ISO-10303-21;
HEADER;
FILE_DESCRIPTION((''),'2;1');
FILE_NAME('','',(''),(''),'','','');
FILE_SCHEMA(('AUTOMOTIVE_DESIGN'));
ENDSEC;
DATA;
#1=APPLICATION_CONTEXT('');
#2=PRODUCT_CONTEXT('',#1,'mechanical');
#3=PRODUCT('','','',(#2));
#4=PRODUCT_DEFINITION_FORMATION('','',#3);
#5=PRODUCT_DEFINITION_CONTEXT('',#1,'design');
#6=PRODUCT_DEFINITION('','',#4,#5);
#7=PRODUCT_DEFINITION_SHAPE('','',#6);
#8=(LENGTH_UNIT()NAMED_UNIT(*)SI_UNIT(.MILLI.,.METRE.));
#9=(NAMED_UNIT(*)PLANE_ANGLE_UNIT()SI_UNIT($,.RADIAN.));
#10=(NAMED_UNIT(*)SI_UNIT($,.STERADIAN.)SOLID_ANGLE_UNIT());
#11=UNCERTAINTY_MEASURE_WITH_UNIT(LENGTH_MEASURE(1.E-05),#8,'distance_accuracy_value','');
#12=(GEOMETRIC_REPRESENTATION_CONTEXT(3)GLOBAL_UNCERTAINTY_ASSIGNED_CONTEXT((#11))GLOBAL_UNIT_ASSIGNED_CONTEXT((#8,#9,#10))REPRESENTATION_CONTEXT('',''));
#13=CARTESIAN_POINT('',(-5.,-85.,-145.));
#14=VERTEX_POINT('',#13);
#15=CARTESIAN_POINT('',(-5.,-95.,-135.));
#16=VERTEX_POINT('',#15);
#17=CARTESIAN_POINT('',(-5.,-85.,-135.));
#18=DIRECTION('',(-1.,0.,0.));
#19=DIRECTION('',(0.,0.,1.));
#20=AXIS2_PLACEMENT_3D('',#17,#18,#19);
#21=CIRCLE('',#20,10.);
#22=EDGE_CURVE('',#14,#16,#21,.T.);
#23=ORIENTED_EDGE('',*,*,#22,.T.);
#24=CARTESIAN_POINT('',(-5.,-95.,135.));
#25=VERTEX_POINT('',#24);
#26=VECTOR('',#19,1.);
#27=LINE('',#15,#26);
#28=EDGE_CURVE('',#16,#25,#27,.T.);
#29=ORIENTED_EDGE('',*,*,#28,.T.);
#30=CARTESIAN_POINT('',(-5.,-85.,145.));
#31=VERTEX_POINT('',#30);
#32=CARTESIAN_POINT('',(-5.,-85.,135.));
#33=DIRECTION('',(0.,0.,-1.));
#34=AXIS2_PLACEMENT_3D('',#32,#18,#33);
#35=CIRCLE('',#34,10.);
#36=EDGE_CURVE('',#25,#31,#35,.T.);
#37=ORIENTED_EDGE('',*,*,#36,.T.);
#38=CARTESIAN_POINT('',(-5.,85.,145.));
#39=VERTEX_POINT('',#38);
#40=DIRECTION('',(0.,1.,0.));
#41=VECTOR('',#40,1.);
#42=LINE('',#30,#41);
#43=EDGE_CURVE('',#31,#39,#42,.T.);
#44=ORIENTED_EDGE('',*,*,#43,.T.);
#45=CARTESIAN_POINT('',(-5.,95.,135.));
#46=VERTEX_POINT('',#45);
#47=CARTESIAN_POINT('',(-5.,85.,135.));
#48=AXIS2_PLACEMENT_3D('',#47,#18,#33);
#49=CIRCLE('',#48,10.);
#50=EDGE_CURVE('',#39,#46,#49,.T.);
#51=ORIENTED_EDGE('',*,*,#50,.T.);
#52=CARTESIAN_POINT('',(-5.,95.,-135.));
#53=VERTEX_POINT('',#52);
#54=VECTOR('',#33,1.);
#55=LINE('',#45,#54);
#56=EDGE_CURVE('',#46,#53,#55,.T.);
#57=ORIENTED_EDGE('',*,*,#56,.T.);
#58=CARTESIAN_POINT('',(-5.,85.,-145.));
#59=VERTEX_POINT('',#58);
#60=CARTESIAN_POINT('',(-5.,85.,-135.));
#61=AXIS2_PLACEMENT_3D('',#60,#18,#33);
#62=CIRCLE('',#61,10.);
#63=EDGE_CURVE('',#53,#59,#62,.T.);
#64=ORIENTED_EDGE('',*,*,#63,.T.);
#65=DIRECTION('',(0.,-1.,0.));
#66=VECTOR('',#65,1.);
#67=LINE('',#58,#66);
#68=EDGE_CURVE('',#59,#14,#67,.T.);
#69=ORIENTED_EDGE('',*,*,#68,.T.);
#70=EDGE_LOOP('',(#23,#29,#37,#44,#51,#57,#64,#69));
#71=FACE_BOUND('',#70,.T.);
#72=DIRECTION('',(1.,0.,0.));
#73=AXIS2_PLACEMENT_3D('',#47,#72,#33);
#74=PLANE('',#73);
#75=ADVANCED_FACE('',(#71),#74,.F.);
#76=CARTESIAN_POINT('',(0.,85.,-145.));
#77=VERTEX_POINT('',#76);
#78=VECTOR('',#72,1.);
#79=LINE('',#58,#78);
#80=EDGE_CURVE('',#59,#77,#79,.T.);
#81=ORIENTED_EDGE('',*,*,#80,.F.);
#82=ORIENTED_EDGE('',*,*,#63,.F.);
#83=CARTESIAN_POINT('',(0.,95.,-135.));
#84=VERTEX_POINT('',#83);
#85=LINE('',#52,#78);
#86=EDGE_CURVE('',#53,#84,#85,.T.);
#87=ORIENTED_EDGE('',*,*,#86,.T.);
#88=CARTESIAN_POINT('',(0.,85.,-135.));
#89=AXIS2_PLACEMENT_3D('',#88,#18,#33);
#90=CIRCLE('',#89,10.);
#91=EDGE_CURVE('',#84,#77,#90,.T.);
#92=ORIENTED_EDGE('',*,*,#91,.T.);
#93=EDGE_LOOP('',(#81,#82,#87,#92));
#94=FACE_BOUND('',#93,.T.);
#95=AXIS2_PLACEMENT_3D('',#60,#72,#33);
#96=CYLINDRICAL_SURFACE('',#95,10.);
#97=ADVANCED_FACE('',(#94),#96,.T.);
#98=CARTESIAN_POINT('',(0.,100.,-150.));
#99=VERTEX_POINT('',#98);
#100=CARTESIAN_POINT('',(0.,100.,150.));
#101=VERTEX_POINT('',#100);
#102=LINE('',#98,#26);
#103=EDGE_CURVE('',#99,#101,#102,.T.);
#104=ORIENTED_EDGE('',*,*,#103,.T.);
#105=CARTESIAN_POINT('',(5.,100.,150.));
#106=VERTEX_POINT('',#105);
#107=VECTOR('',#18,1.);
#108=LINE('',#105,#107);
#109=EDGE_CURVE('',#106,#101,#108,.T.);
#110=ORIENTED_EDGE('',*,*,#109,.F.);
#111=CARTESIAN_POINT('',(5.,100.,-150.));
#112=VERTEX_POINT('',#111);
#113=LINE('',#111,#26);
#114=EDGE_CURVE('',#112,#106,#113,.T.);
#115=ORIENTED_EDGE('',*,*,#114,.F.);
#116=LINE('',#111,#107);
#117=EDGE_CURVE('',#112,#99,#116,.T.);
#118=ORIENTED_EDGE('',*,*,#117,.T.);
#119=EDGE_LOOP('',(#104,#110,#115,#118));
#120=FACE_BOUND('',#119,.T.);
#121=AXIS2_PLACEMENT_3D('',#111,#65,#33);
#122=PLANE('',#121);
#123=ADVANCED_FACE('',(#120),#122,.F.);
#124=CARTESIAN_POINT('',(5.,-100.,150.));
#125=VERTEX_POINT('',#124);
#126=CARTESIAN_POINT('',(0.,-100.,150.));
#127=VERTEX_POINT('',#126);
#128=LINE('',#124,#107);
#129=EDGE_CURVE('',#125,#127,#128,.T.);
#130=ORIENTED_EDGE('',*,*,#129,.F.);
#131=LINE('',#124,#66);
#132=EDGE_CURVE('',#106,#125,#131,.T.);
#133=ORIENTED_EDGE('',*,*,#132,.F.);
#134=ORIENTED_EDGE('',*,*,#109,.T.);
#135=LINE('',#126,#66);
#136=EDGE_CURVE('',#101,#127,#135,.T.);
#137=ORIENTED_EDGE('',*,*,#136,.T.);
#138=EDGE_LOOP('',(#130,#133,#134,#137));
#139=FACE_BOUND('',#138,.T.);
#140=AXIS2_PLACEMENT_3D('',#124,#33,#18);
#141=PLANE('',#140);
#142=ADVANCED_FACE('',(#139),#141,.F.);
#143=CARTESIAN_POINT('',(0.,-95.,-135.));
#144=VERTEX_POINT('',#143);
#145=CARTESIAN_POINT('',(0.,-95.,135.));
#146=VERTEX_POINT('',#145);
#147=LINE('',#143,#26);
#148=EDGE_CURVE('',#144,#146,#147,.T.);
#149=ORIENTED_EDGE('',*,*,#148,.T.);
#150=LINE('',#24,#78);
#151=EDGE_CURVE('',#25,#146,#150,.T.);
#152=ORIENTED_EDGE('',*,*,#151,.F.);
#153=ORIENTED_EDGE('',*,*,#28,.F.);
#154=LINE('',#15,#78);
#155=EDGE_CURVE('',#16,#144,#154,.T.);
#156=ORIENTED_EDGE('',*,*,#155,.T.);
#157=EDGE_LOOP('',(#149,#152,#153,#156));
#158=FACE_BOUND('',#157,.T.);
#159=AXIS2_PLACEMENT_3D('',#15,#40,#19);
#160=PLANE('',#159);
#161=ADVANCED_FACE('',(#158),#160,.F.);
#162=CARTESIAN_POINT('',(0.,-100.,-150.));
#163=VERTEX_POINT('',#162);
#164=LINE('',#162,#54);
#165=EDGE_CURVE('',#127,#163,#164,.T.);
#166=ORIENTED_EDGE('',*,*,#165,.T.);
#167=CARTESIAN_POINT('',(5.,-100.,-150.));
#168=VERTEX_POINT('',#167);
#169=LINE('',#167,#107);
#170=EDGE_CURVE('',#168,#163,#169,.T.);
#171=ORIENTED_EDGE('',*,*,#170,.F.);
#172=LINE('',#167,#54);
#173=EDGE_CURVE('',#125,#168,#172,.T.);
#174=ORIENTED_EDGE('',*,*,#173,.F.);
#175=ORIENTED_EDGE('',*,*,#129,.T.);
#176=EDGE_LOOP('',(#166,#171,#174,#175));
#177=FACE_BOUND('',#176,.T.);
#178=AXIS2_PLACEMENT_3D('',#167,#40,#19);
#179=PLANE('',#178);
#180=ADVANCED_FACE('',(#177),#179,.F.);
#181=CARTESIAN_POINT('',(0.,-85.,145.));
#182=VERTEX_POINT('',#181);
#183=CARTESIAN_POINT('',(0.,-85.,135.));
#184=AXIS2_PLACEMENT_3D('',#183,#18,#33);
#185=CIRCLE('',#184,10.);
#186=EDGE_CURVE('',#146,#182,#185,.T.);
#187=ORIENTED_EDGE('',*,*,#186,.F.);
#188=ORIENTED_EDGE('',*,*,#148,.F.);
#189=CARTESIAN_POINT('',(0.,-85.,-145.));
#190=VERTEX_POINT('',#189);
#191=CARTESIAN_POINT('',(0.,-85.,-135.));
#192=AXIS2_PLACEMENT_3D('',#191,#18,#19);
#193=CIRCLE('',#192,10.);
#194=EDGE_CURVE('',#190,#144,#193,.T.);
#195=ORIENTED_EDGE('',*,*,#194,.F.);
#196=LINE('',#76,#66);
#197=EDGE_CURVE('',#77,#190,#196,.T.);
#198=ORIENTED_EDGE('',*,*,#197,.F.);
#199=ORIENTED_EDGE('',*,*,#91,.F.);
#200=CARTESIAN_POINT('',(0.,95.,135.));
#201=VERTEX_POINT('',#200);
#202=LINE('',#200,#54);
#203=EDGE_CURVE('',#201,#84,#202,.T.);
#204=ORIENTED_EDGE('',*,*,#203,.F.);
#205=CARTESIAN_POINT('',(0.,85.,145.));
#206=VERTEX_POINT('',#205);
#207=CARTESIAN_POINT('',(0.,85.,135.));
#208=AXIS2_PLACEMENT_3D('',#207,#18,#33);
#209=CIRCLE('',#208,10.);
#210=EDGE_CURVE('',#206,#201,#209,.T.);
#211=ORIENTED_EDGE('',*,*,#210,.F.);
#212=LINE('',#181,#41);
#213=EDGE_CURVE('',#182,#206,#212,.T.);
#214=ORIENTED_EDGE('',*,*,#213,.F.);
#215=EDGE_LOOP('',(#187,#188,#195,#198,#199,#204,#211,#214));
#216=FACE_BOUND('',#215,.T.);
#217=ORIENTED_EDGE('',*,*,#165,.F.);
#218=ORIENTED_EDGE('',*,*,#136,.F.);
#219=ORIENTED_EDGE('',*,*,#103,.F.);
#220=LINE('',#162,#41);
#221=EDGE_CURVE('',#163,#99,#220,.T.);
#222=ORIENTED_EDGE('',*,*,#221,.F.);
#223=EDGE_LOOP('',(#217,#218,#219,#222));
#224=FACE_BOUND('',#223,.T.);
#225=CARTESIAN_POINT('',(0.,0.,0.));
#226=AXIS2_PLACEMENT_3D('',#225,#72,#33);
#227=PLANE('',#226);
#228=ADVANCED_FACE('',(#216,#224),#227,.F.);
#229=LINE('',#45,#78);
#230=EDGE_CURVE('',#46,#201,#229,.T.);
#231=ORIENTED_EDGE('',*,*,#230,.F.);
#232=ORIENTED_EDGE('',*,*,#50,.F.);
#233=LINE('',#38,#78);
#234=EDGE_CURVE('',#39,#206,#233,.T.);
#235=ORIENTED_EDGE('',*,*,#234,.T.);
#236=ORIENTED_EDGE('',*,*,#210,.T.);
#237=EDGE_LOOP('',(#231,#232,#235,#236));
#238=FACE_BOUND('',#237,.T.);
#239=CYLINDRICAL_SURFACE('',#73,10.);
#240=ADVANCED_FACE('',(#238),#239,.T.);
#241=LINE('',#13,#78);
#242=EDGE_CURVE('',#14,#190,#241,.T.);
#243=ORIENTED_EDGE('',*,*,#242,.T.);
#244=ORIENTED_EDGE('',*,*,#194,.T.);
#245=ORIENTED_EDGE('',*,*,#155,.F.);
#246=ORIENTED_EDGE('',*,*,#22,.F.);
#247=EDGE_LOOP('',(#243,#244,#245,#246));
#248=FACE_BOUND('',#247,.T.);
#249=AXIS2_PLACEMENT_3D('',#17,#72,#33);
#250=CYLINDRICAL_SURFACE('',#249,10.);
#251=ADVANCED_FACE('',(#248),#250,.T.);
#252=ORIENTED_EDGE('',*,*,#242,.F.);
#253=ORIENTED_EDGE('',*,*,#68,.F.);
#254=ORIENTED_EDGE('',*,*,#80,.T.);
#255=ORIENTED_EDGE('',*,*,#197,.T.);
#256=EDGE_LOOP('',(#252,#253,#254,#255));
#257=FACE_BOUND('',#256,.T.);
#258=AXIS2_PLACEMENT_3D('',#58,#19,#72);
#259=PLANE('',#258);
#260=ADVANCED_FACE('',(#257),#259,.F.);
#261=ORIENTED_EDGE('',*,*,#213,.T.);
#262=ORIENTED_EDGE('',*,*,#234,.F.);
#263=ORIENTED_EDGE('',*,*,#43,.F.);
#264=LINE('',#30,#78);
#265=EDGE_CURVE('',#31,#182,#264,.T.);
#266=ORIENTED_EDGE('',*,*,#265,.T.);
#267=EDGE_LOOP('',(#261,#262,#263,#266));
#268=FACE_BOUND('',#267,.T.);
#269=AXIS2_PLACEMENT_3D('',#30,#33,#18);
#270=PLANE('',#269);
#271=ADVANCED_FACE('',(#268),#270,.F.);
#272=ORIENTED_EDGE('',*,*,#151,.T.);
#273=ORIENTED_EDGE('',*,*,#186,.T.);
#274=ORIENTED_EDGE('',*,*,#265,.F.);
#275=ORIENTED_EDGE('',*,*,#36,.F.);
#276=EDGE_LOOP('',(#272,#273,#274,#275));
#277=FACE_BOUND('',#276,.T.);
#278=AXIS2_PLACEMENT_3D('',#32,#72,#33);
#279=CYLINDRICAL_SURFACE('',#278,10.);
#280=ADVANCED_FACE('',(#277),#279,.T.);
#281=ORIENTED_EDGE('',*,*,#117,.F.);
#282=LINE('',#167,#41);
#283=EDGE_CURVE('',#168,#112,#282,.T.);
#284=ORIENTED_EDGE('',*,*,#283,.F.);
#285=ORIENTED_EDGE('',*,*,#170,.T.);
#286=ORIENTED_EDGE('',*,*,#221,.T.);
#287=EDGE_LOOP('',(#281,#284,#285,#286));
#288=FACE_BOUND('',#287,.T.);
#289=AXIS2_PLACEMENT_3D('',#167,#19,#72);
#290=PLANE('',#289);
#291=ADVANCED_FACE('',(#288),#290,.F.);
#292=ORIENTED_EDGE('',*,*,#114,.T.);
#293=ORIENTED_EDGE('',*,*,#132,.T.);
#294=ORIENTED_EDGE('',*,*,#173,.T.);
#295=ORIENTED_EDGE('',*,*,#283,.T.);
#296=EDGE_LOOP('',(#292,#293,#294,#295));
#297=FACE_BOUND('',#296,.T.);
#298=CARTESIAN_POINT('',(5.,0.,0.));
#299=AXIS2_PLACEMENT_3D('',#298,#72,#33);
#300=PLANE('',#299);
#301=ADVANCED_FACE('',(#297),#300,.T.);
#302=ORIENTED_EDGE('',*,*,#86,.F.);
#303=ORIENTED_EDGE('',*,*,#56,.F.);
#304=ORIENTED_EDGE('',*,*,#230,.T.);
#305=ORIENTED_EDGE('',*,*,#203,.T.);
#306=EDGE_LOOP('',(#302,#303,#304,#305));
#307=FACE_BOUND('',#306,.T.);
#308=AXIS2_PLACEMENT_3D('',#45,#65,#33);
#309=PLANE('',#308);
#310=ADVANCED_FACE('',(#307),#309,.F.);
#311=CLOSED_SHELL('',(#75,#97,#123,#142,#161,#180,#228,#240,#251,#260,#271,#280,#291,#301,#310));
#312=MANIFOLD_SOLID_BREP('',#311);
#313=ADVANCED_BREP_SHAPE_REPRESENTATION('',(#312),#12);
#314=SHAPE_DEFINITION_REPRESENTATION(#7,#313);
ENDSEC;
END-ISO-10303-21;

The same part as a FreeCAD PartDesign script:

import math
import FreeCAD as App
import Part
import Sketcher

V = App.Vector
Q = App.Units.Quantity

doc = App.newDocument("Part")
body = doc.addObject("PartDesign::Body", "Body")

# Sketch on YZ plane
sketch1 = body.newObject("Sketcher::SketchObject", "Sketch")
sketch1.AttachmentSupport = (doc.getObject("YZ_Plane"), [""])
sketch1.MapMode = "FlatFace"
sketch1.addGeometry([
    Part.LineSegment(V(100, 150, 0), V(-100, 150, 0)),
    Part.LineSegment(V(-100, 150, 0), V(-100, -150, 0)),
    Part.LineSegment(V(-100, -150, 0), V(100, -150, 0)),
    Part.LineSegment(V(100, -150, 0), V(100, 150, 0)),
], False)
sketch1.addConstraint([
    Sketcher.Constraint("Coincident", 0, 2, 1, 1),
    Sketcher.Constraint("Coincident", 1, 2, 2, 1),
    Sketcher.Constraint("Coincident", 2, 2, 3, 1),
    Sketcher.Constraint("Coincident", 3, 2, 0, 1),
    Sketcher.Constraint("Horizontal", 0),
    Sketcher.Constraint("Vertical", 1),
    Sketcher.Constraint("Horizontal", 2),
    Sketcher.Constraint("Vertical", 3),
    Sketcher.Constraint("Symmetric", 0, 2, 2, 2, -1, 1),
    Sketcher.Constraint("DistanceX", 0, 2, 0, 1, Q("200 mm")),
    Sketcher.Constraint("DistanceY", 1, 2, 1, 1, Q("300 mm")),
])
pad1 = body.newObject("PartDesign::Pad", "Pad")
pad1.Profile = sketch1
pad1.Length = 5

# Sketch on YZ plane
sketch2 = body.newObject("Sketcher::SketchObject", "Sketch001")
sketch2.AttachmentSupport = (doc.getObject("YZ_Plane"), [""])
sketch2.MapMode = "FlatFace"
sketch2.addGeometry([
    Part.LineSegment(V(-85, 145, 0), V(85, 145, 0)),  # 0
    Part.ArcOfCircle(Part.Circle(V(85, 135, 0), V(0, 0, 1), 10), math.radians(0), math.radians(90)),  # 1
    Part.LineSegment(V(95, 135, 0), V(95, -135, 0)),  # 2
    Part.ArcOfCircle(Part.Circle(V(85, -135, 0), V(0, 0, 1), 10), math.radians(-90), math.radians(0)),  # 3
    Part.LineSegment(V(85, -145, 0), V(-85, -145, 0)),  # 4
    Part.ArcOfCircle(Part.Circle(V(-85, -135, 0), V(0, 0, 1), 10), math.radians(180), math.radians(270)),  # 5
    Part.LineSegment(V(-95, -135, 0), V(-95, 135, 0)),  # 6
    Part.ArcOfCircle(Part.Circle(V(-85, 135, 0), V(0, 0, 1), 10), math.radians(90), math.radians(180)),  # 7
], False)
sketch2.addConstraint([
    Sketcher.Constraint("Tangent", 0, 2, 1, 2),
    Sketcher.Constraint("Tangent", 1, 1, 2, 1),
    Sketcher.Constraint("Tangent", 2, 2, 3, 2),
    Sketcher.Constraint("Tangent", 3, 1, 4, 1),
    Sketcher.Constraint("Tangent", 4, 2, 5, 2),
    Sketcher.Constraint("Tangent", 5, 1, 6, 1),
    Sketcher.Constraint("Tangent", 6, 2, 7, 2),
    Sketcher.Constraint("Tangent", 7, 1, 0, 1),
    Sketcher.Constraint("Horizontal", 0),
    Sketcher.Constraint("Vertical", 2),
    Sketcher.Constraint("Horizontal", 4),
    Sketcher.Constraint("Vertical", 6),
    Sketcher.Constraint("Equal", 1, 3),
    Sketcher.Constraint("Equal", 3, 5),
    Sketcher.Constraint("Equal", 5, 7),
    Sketcher.Constraint("Symmetric", 1, 3, 5, 3, -1, 1),
    Sketcher.Constraint("Radius", 1, Q("10 mm")),
    Sketcher.Constraint("DistanceX", 0, 1, 0, 2, Q("170 mm")),
    Sketcher.Constraint("DistanceY", 2, 2, 2, 1, Q("270 mm")),
])
pad2 = body.newObject("PartDesign::Pad", "Pad001")
pad2.Profile = sketch2
pad2.Length = 5
pad2.Reversed = True

doc.recompute()
